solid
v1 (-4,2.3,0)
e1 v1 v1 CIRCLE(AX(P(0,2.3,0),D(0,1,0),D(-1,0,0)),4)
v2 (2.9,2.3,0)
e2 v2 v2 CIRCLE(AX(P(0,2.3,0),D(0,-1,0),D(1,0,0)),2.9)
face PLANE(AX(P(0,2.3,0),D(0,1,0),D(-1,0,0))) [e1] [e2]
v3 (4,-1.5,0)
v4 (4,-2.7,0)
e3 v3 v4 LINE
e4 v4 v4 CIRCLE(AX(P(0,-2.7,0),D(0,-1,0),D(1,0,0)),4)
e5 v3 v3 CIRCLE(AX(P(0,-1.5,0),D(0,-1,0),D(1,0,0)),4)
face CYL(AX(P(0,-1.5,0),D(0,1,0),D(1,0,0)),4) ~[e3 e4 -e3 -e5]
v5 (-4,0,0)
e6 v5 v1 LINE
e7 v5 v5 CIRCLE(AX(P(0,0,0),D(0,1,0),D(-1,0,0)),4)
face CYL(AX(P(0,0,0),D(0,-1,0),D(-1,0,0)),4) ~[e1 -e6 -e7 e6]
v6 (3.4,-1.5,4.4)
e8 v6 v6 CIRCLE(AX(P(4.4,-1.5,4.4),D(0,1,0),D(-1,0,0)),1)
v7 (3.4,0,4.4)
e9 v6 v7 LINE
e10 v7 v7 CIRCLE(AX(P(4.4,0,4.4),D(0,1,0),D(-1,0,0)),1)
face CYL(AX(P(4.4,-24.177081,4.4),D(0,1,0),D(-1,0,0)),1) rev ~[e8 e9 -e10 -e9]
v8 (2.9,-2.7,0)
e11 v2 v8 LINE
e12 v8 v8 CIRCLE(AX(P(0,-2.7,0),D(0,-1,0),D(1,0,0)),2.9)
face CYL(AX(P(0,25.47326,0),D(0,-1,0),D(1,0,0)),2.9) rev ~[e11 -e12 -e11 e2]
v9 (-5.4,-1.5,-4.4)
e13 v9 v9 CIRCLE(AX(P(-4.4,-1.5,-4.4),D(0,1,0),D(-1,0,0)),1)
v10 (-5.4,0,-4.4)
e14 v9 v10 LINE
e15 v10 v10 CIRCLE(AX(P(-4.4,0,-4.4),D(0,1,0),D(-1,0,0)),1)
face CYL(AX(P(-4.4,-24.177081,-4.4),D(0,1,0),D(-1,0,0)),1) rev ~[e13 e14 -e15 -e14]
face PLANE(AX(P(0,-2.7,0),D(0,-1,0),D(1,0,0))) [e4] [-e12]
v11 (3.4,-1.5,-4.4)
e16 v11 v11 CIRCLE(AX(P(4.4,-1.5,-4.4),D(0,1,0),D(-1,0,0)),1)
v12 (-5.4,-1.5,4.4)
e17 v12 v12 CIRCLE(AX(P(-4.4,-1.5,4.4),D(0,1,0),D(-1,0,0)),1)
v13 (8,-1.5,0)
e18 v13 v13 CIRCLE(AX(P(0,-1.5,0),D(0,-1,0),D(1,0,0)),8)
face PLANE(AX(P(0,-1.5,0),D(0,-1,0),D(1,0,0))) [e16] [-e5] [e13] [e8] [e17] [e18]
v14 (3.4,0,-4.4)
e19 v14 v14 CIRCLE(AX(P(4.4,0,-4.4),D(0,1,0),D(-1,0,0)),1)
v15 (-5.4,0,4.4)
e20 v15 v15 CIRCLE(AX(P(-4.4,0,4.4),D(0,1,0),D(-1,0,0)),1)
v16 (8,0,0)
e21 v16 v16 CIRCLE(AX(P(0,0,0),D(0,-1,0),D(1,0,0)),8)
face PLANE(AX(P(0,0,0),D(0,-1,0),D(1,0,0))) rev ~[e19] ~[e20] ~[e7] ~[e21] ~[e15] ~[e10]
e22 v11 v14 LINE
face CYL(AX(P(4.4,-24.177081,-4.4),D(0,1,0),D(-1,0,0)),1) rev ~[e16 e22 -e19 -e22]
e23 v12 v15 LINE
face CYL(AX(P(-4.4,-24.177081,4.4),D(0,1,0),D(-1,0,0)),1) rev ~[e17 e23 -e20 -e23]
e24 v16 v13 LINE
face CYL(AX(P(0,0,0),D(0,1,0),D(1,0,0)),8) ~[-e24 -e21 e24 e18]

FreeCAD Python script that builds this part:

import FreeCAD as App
import Part
import Sketcher

V = App.Vector

doc = App.newDocument("Part")
params = doc.addObject("Spreadsheet::Sheet", "Params")
for row, (alias, value) in enumerate([
    ("sketch1_diameter", "16 mm"),
    ("pad1_length", "1.5 mm"),
    ("sketch2_diameter", "2 mm"),
    ("hole_diameter", "2 mm"),
    ("sketch3_diameter", "8 mm"),
    ("pad2_length", "1.2 mm"),
    ("sketch4_diameter", "8 mm"),
    ("pad3_length", "2.3 mm"),
    ("sketch5_diameter", "5.8 mm"),
    ("hole2_diameter", "5.8 mm"),
], start=1):
    params.set(f"A{row}", alias)
    params.set(f"B{row}", "=" + value)
    params.setAlias(f"B{row}", alias)

body = doc.addObject("PartDesign::Body", "Body")

# Sketch on XZ plane
sketch1 = doc.addObject("Sketcher::SketchObject", "Sketch")
body.addObject(sketch1)
sketch1.AttachmentSupport = (doc.XZ_Plane, [""])
sketch1.MapMode = "FlatFace"
sketch1.addGeometry(Part.Circle(V(0, 0, 0), V(0, 0, 1), 8), False)
sketch1.addConstraint(Sketcher.Constraint("Coincident", 0, 3, -1, 1))
sketch1.addConstraint(Sketcher.Constraint("Diameter", 0, 16.0))
sketch1.setExpression("Constraints[1]", "Params.sketch1_diameter")
pad1 = doc.addObject("PartDesign::Pad", "Pad")
body.addObject(pad1)
pad1.Profile = sketch1
pad1.setExpression("Length", "Params.pad1_length")

# Sketch on XZ plane
sketch2 = doc.addObject("Sketcher::SketchObject", "Sketch001")
body.addObject(sketch2)
sketch2.AttachmentSupport = (doc.XZ_Plane, [""])
sketch2.MapMode = "FlatFace"
sketch2.AttachmentOffset = App.Placement(V(0, 0, 1.5), App.Rotation())
sketch2.addGeometry(Part.Circle(V(-4.4, 4.4, 0), V(0, 0, 1), 1), False)
sketch2.addGeometry(Part.Circle(V(4.4, 4.4, 0), V(0, 0, 1), 1), False)
sketch2.addGeometry(Part.Circle(V(4.4, -4.4, 0), V(0, 0, 1), 1), False)
sketch2.addGeometry(Part.Circle(V(-4.4, -4.4, 0), V(0, 0, 1), 1), False)
sketch2.addConstraint(Sketcher.Constraint("Equal", 0, 1))
sketch2.addConstraint(Sketcher.Constraint("Equal", 1, 2))
sketch2.addConstraint(Sketcher.Constraint("Equal", 2, 3))
sketch2.addConstraint(Sketcher.Constraint("Symmetric", 0, 3, 2, 3, -1, 1))
sketch2.addConstraint(Sketcher.Constraint("Symmetric", 1, 3, 3, 3, -1, 1))
sketch2.addConstraint(Sketcher.Constraint("Symmetric", 0, 3, 1, 3, -2))
sketch2.addConstraint(Sketcher.Constraint("Diameter", 0, 2.0))
sketch2.addConstraint(Sketcher.Constraint("DistanceX", 0, 3, -1, 1, 4.4))
sketch2.addConstraint(Sketcher.Constraint("DistanceY", -1, 1, 0, 3, 4.4))
sketch2.setExpression("Constraints[6]", "Params.sketch2_diameter")
doc.recompute()
hole = doc.addObject("PartDesign::Hole", "Hole")
body.addObject(hole)
hole.Profile = sketch2
hole.ThreadType = "None"
hole.setExpression("Diameter", "Params.hole_diameter")
hole.DepthType = "ThroughAll"

# Sketch on XZ plane
sketch3 = doc.addObject("Sketcher::SketchObject", "Sketch002")
body.addObject(sketch3)
sketch3.AttachmentSupport = (doc.XZ_Plane, [""])
sketch3.MapMode = "FlatFace"
sketch3.AttachmentOffset = App.Placement(V(0, 0, 1.5), App.Rotation())
sketch3.addGeometry(Part.Circle(V(0, 0, 0), V(0, 0, 1), 4), False)
sketch3.addConstraint(Sketcher.Constraint("Coincident", 0, 3, -1, 1))
sketch3.addConstraint(Sketcher.Constraint("Diameter", 0, 8.0))
sketch3.setExpression("Constraints[1]", "Params.sketch3_diameter")
pad2 = doc.addObject("PartDesign::Pad", "Pad001")
body.addObject(pad2)
pad2.Profile = sketch3
pad2.setExpression("Length", "Params.pad2_length")

# Sketch on XZ plane
sketch4 = doc.addObject("Sketcher::SketchObject", "Sketch003")
body.addObject(sketch4)
sketch4.AttachmentSupport = (doc.XZ_Plane, [""])
sketch4.MapMode = "FlatFace"
sketch4.addGeometry(Part.Circle(V(0, 0, 0), V(0, 0, 1), 4), False)
sketch4.addConstraint(Sketcher.Constraint("Coincident", 0, 3, -1, 1))
sketch4.addConstraint(Sketcher.Constraint("Diameter", 0, 8.0))
sketch4.setExpression("Constraints[1]", "Params.sketch4_diameter")
pad3 = doc.addObject("PartDesign::Pad", "Pad002")
body.addObject(pad3)
pad3.Profile = sketch4
pad3.setExpression("Length", "Params.pad3_length")
pad3.Reversed = True

# Sketch on XZ plane
sketch5 = doc.addObject("Sketcher::SketchObject", "Sketch004")
body.addObject(sketch5)
sketch5.AttachmentSupport = (doc.XZ_Plane, [""])
sketch5.MapMode = "FlatFace"
sketch5.AttachmentOffset = App.Placement(V(0, 0, -2.3), App.Rotation())
sketch5.addGeometry(Part.Circle(V(0, 0, 0), V(0, 0, 1), 2.9), False)
sketch5.addConstraint(Sketcher.Constraint("Coincident", 0, 3, -1, 1))
sketch5.addConstraint(Sketcher.Constraint("Diameter", 0, 5.8))
sketch5.setExpression("Constraints[1]", "Params.sketch5_diameter")
doc.recompute()
hole2 = doc.addObject("PartDesign::Hole", "Hole001")
body.addObject(hole2)
hole2.Profile = sketch5
hole2.ThreadType = "None"
hole2.setExpression("Diameter", "Params.hole2_diameter")
hole2.DepthType = "ThroughAll"
hole2.Reversed = True

doc.recompute()
